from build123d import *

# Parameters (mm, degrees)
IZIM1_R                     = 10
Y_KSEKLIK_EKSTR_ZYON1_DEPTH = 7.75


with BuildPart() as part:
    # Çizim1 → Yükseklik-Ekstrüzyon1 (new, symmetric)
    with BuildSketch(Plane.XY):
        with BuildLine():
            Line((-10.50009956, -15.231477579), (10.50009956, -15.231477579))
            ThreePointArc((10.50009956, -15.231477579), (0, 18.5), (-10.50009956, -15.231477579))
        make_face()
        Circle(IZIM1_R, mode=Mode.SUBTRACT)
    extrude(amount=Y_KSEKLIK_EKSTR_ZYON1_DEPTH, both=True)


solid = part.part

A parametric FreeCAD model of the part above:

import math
import FreeCAD as App
import Part
import Sketcher
Q = App.Units.Quantity

doc = App.newDocument("Part")
body = doc.addObject("PartDesign::Body", "Body")

sketch1 = body.newObject("Sketcher::SketchObject", "Sketch")
sketch1.AttachmentSupport = (doc.getObject("XY_Plane"), [""])
sketch1.MapMode = "FlatFace"
sketch1.addGeometry([
    Part.LineSegment(App.Vector(-10.5001, -15.231478, 0), App.Vector(10.5001, -15.231478, 0)),
    Part.ArcOfCircle(Part.Circle(App.Vector(0, 0, 0), App.Vector(0, 0, 1), 18.5), math.radians(-55.418847), math.radians(235.418847)),
    Part.Circle(App.Vector(0, 0, 0), App.Vector(0, 0, 1), 10),
], False)
sketch1.addConstraint([
    Sketcher.Constraint("Coincident", 0, 1, 1, 2),
    Sketcher.Constraint("Coincident", 1, 1, 0, 2),
    Sketcher.Constraint("Horizontal", 0),
    Sketcher.Constraint("Coincident", 1, 3, -1, 1),
    Sketcher.Constraint("Coincident", 2, 3, -1, 1),
    Sketcher.Constraint("Diameter", 2, Q("20 mm")),
    Sketcher.Constraint("Radius", 1, Q("18.5 mm")),
    Sketcher.Constraint("DistanceX", 0, 1, 0, 2, Q("21.000199 mm")),
])
pad1 = body.newObject("PartDesign::Pad", "Pad")
pad1.Profile = sketch1
pad1.Length = 15.5
pad1.Midplane = True

doc.recompute()
